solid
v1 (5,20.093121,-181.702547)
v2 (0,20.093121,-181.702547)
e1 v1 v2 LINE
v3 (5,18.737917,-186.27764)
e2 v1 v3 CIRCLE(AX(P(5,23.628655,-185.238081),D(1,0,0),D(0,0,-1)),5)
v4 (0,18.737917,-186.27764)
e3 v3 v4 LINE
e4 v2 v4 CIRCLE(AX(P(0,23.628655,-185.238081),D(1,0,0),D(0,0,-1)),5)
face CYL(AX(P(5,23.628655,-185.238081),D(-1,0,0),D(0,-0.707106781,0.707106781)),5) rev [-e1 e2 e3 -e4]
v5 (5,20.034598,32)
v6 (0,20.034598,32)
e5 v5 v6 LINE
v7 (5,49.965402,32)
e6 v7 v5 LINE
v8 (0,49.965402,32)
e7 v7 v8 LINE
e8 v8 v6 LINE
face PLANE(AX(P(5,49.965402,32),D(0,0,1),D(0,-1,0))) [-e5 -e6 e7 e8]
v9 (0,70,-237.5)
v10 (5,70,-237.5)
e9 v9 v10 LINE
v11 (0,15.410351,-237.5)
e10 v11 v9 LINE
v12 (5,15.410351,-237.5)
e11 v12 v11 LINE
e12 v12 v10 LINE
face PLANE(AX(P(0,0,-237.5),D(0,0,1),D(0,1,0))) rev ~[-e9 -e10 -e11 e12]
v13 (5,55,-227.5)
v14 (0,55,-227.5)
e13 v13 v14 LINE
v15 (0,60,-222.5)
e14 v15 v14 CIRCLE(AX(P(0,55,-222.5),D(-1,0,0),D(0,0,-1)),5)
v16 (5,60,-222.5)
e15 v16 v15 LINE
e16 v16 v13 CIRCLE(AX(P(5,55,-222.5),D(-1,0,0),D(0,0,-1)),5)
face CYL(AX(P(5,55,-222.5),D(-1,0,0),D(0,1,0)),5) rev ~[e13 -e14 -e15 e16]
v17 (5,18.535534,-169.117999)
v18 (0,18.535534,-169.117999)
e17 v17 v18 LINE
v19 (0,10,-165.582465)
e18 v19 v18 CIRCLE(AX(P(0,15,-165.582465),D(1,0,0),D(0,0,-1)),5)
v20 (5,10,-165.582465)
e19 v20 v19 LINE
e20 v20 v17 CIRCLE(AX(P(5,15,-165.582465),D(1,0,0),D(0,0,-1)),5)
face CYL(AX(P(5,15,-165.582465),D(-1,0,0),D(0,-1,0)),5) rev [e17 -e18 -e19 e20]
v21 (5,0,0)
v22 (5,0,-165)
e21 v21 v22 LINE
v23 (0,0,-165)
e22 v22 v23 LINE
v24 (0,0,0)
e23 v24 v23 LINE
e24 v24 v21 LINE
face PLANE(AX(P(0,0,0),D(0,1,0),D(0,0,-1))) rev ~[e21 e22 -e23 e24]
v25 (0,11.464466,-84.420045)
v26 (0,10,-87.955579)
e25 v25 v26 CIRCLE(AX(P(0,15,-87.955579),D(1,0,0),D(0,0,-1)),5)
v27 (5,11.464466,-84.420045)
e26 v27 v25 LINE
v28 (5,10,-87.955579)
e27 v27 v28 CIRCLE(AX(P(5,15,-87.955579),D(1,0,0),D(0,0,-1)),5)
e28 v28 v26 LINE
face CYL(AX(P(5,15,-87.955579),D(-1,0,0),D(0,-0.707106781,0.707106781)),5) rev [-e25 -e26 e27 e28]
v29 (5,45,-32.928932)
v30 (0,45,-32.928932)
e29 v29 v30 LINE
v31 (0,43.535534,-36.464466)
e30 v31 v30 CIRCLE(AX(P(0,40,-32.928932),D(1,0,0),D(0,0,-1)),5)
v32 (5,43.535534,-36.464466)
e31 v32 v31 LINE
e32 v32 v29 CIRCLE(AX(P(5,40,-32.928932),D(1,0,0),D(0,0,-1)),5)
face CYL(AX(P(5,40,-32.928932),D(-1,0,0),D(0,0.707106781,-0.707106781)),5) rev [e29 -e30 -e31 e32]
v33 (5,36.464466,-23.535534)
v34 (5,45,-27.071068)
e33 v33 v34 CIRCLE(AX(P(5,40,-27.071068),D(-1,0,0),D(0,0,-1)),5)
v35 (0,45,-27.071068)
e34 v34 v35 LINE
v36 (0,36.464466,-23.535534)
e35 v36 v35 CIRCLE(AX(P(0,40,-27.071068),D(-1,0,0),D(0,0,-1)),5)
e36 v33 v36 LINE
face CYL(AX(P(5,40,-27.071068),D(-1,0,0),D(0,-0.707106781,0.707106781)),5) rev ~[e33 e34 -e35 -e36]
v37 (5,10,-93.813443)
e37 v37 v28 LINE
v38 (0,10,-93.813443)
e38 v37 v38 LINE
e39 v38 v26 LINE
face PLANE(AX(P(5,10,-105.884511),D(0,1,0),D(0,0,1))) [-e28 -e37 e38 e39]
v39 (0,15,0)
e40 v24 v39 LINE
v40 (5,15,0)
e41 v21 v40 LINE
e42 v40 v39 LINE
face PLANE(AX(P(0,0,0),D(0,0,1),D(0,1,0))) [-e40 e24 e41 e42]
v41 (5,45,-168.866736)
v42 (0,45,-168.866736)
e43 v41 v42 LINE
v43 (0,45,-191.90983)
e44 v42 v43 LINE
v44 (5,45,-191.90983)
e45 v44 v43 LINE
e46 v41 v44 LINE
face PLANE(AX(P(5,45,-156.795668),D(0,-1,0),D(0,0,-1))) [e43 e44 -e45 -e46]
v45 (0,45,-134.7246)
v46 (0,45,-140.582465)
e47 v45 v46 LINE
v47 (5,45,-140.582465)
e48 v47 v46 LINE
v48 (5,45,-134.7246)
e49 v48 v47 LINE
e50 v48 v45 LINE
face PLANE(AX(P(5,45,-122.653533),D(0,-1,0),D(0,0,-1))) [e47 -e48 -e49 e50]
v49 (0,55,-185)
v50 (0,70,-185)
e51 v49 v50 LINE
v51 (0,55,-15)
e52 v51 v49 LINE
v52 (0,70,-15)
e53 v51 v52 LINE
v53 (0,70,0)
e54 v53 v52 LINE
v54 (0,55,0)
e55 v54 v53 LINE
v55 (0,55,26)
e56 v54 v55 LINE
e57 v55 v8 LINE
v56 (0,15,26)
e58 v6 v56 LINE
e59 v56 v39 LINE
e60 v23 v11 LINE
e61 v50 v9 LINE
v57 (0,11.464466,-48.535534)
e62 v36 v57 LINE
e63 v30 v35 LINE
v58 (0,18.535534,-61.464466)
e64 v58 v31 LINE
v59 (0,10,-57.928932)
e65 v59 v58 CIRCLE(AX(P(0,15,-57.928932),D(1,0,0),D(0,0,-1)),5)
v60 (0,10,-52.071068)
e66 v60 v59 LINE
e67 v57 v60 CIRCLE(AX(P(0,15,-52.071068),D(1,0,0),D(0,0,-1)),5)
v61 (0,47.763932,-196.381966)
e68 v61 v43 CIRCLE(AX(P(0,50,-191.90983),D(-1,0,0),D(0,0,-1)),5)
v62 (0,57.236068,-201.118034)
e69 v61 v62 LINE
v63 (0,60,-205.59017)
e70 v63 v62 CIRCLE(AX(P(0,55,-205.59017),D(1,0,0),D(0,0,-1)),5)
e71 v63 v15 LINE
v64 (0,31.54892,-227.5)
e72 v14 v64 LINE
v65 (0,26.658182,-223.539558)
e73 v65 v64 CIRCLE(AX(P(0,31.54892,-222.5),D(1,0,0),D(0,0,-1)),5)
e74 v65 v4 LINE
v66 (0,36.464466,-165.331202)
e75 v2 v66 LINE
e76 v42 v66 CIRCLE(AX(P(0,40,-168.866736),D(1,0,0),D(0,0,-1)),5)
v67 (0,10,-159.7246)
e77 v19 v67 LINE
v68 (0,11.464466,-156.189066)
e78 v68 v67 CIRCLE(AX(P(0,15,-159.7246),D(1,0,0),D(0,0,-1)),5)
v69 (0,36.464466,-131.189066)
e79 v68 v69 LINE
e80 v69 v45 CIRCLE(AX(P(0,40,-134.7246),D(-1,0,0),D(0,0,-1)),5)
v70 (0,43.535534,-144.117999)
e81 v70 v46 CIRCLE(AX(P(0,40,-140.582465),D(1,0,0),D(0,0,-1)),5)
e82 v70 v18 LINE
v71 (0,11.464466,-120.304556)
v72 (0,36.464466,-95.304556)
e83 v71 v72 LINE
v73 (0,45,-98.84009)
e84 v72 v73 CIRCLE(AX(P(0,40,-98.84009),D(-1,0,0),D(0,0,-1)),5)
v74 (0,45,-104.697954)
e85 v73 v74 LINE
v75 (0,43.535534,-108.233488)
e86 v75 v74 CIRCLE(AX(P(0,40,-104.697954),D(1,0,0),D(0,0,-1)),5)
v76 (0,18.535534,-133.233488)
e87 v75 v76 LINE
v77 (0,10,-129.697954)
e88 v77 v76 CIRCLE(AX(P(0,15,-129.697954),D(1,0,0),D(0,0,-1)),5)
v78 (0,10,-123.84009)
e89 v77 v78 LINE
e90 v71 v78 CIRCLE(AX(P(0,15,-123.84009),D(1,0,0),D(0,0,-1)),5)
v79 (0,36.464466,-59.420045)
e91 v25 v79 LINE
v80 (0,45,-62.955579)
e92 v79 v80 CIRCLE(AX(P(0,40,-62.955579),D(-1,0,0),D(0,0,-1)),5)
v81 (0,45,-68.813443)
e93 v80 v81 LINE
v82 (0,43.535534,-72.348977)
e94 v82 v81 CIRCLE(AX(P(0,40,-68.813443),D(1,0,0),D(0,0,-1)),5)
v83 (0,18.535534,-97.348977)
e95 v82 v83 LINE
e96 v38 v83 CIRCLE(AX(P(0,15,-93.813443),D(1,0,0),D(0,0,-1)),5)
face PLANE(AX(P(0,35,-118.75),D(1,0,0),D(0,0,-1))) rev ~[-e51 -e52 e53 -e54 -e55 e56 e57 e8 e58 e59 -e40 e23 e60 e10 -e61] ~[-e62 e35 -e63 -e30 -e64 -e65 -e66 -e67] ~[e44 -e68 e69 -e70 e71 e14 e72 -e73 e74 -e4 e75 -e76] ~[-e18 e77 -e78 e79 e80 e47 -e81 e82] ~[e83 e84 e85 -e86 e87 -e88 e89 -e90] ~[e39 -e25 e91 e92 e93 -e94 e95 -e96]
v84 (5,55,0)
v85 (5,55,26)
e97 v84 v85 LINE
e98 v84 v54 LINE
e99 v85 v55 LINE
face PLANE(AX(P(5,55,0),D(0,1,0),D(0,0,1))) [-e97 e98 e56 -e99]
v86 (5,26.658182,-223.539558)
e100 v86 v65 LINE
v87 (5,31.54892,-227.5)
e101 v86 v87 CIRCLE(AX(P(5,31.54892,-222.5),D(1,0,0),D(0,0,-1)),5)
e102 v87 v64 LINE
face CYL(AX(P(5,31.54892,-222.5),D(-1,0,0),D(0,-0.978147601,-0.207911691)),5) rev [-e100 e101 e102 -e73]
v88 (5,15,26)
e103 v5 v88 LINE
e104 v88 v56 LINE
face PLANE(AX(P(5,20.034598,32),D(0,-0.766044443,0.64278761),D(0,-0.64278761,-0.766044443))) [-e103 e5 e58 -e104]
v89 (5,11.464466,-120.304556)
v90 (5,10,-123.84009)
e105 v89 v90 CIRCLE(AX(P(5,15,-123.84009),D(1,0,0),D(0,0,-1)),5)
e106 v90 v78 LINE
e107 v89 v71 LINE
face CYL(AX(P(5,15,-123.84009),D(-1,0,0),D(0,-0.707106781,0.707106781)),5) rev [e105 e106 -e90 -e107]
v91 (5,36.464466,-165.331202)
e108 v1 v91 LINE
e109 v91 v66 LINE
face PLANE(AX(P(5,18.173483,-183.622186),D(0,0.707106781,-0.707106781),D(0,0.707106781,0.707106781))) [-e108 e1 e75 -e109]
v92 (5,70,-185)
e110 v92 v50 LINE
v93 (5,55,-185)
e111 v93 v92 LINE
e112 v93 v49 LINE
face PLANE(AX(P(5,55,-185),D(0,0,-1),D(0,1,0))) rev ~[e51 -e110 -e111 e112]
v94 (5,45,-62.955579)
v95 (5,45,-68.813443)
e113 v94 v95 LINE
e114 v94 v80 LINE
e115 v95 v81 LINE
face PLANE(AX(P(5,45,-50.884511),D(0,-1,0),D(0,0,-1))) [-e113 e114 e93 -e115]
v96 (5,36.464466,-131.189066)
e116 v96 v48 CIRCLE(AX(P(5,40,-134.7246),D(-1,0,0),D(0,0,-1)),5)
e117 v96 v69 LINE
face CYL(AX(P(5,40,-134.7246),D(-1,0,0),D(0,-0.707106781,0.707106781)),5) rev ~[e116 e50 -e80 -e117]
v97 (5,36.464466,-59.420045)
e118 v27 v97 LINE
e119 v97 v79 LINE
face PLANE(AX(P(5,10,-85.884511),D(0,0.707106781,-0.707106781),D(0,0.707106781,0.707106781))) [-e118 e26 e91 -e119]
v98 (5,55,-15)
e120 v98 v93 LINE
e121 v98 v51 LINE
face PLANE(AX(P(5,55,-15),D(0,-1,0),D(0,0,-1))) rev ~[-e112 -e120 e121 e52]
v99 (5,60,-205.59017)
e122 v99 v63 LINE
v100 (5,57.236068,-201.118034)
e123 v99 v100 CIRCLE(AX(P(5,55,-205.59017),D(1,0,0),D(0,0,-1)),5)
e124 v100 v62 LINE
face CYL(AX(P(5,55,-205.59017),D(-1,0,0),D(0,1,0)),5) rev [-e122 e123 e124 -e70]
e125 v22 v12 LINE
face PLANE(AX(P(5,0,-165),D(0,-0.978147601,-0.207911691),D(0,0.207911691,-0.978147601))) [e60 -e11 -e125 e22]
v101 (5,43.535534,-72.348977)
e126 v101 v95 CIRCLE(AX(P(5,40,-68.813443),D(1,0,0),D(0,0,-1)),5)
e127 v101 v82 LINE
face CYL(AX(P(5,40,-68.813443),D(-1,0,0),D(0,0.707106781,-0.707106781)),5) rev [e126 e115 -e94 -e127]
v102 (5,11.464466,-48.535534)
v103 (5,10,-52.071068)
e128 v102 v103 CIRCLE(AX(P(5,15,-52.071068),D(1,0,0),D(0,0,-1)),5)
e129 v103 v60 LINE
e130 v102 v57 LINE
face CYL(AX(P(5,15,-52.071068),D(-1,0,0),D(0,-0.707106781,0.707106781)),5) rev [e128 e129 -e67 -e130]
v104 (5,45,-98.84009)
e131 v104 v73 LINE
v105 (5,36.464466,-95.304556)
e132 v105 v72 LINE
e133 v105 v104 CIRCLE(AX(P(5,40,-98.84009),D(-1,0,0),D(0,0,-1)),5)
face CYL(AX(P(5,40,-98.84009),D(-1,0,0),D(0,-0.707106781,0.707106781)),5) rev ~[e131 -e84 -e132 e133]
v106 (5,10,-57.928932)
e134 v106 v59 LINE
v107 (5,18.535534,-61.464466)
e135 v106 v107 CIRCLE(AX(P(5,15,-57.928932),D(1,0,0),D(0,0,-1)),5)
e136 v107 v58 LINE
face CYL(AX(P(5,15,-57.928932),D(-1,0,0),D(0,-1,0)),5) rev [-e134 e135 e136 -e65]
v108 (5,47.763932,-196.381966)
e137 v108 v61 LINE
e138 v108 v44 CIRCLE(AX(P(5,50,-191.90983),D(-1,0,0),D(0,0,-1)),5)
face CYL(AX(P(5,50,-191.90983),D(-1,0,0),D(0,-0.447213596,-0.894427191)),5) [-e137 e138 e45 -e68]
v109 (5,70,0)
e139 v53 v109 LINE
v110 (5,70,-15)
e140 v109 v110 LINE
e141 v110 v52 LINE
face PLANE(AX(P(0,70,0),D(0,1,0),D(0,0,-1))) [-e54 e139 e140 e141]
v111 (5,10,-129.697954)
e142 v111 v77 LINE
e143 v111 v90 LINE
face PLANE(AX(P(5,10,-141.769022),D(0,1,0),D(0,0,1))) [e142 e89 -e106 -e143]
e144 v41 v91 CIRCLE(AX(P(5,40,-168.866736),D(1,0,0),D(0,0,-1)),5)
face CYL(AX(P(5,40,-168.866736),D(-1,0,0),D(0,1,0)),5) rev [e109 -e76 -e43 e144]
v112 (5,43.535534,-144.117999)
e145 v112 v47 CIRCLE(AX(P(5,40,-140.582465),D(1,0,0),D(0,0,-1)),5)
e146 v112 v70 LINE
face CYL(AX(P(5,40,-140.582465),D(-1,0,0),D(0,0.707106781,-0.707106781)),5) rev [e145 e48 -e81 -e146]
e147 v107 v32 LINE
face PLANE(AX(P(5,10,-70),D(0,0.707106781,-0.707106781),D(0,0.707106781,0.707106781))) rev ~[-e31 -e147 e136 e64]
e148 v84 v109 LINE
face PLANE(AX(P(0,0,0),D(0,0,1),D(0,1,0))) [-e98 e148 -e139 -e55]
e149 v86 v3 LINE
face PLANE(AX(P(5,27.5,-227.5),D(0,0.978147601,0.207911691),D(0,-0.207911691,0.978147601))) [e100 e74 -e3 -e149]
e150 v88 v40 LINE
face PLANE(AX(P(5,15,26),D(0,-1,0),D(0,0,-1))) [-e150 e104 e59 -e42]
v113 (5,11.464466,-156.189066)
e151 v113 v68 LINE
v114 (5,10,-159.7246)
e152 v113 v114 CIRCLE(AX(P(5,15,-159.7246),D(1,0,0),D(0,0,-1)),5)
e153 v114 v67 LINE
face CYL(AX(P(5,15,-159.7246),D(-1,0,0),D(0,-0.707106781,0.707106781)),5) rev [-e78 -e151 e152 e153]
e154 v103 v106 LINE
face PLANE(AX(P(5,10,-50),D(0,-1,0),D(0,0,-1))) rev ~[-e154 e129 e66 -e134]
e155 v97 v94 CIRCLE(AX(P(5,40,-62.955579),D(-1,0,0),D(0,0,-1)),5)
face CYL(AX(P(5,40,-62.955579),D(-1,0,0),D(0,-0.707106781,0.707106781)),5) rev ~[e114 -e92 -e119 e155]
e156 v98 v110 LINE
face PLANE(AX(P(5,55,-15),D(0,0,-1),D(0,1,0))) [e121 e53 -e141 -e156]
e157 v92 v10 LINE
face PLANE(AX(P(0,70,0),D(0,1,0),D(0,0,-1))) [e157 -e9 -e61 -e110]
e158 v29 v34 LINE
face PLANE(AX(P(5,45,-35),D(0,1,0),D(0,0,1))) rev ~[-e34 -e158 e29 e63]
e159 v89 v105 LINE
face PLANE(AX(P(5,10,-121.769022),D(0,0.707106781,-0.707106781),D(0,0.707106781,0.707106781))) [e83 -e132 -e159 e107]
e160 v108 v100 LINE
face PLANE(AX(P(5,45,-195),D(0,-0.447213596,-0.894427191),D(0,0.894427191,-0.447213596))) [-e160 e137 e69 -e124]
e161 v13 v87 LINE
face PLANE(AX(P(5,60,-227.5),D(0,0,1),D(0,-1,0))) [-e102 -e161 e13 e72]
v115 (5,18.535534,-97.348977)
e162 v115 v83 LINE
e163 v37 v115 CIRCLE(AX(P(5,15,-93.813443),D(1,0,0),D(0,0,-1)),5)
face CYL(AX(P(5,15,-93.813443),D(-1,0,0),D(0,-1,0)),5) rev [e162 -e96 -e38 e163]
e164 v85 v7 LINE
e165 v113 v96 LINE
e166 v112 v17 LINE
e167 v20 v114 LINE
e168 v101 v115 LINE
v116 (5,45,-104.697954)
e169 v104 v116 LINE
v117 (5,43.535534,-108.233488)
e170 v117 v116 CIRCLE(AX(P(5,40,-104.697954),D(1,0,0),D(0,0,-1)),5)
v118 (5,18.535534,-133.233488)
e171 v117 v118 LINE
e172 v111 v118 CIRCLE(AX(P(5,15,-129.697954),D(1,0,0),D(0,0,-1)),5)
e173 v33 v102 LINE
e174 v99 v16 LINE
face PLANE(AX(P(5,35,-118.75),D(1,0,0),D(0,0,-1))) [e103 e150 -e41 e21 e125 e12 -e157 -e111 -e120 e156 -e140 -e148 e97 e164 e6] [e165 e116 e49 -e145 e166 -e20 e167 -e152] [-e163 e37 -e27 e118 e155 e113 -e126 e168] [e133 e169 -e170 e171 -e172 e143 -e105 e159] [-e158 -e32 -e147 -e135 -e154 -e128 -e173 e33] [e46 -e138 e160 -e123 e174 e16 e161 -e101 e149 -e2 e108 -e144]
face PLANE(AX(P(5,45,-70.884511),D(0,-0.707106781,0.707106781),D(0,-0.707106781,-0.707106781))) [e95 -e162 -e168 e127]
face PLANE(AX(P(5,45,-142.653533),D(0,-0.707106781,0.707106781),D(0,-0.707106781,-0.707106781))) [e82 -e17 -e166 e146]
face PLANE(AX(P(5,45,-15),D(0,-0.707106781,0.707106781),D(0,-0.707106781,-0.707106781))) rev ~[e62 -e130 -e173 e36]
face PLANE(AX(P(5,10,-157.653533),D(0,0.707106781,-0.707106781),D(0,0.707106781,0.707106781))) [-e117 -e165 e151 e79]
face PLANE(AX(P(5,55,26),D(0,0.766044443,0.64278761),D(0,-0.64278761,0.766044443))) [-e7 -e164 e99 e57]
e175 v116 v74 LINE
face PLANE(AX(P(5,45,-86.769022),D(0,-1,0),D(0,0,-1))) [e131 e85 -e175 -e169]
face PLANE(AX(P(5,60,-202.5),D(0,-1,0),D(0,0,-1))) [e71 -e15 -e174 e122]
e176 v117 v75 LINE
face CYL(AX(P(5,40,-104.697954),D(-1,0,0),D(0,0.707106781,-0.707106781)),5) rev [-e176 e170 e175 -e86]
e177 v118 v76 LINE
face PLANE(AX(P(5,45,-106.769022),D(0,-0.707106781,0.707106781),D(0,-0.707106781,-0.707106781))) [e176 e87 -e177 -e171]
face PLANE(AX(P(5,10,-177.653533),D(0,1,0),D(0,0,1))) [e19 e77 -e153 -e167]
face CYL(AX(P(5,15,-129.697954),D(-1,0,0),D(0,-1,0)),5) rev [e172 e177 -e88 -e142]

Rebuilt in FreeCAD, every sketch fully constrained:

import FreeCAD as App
import Part
import Sketcher
Q = App.Units.Quantity


def edges_at(feature, points):
    """Names of the edges that pass closest to the given points."""
    edges = feature.Shape.Edges
    near = lambda p: min(range(len(edges)), key=lambda i: edges[i].distToShape(Part.Vertex(*p))[0])
    return sorted({f"Edge{near(p) + 1}" for p in points})


def add_polygon(sketch, points):
    """Adds a closed chain of lines whose ends are joined by coincident constraints."""
    first, n = sketch.GeometryCount, len(points)
    for a, b in zip(points, points[1:] + points[:1]):
        sketch.addGeometry(Part.LineSegment(App.Vector(*a, 0), App.Vector(*b, 0)), False)
    for i in range(n):
        sketch.addConstraint(Sketcher.Constraint("Coincident", first + i, 2, first + (i + 1) % n, 1))

doc = App.newDocument("Part")
body = doc.addObject("PartDesign::Body", "Body")

# Sketch on YZ plane
sketch1 = body.newObject("Sketcher::SketchObject", "Sketch")
sketch1.AttachmentSupport = (doc.getObject("YZ_Plane"), [""])
sketch1.MapMode = "FlatFace"
add_polygon(sketch1, [(70, 0), (0, 0), (0, -238), (70, -238)])  # lines 0-3
sketch1.addConstraint([
    Sketcher.Constraint("Horizontal", 0),
    Sketcher.Constraint("Vertical", 1),
    Sketcher.Constraint("Horizontal", 2),
    Sketcher.Constraint("Vertical", 3),
    Sketcher.Constraint("Coincident", 0, 2, -1, 1),
    Sketcher.Constraint("DistanceX", 0, 2, 0, 1, Q("70 mm")),
    Sketcher.Constraint("DistanceY", 1, 2, 1, 1, Q("237.5 mm")),
])
pad1 = body.newObject("PartDesign::Pad", "Pad")
pad1.Profile = sketch1
pad1.Length = 5

# Sketch on YZ plane
sketch2 = body.newObject("Sketcher::SketchObject", "Sketch001")
sketch2.AttachmentSupport = (doc.getObject("YZ_Plane"), [""])
sketch2.MapMode = "FlatFace"
sketch2.AttachmentOffset = App.Placement(App.Vector(0, 0, 5), App.Rotation())
add_polygon(sketch2, [(15, -238), (0, -165), (0, -238)])  # lines 0-2
sketch2.addConstraint([
    Sketcher.Constraint("Vertical", 1),
    Sketcher.Constraint("Horizontal", 2),
    Sketcher.Constraint("PointOnObject", 0, 2, -2),
    Sketcher.Constraint("Angle", 0, Q("102 deg")),
    Sketcher.Constraint("DistanceY", 1, 2, 1, 1, Q("72.5 mm")),
    Sketcher.Constraint("DistanceY", 0, 2, -1, 1, Q("165 mm")),
])
pocket1 = body.newObject("PartDesign::Pocket", "Pocket")
pocket1.Profile = sketch2
pocket1.Type = "ThroughAll"

# Sketch on YZ plane
sketch3 = body.newObject("Sketcher::SketchObject", "Sketch002")
sketch3.AttachmentSupport = (doc.getObject("YZ_Plane"), [""])
sketch3.MapMode = "FlatFace"
sketch3.AttachmentOffset = App.Placement(App.Vector(0, 0, 5), App.Rotation())
add_polygon(sketch3, [(70, -15), (55, -15), (55, -185), (70, -185)])  # lines 0-3
sketch3.addConstraint([
    Sketcher.Constraint("Horizontal", 0),
    Sketcher.Constraint("Vertical", 1),
    Sketcher.Constraint("Horizontal", 2),
    Sketcher.Constraint("Vertical", 3),
    Sketcher.Constraint("DistanceX", 0, 2, 0, 1, Q("15 mm")),
    Sketcher.Constraint("DistanceY", 1, 2, 1, 1, Q("170 mm")),
    Sketcher.Constraint("DistanceX", -1, 1, 0, 2, Q("55 mm")),
    Sketcher.Constraint("DistanceY", 0, 2, -1, 1, Q("15 mm")),
])
pocket2 = body.newObject("PartDesign::Pocket", "Pocket001")
pocket2.Profile = sketch3
pocket2.Length = 5

# Sketch on YZ plane
sketch4 = body.newObject("Sketcher::SketchObject", "Sketch003")
sketch4.AttachmentSupport = (doc.getObject("YZ_Plane"), [""])
sketch4.MapMode = "FlatFace"
sketch4.AttachmentOffset = App.Placement(App.Vector(0, 0, 5), App.Rotation())
add_polygon(sketch4, [(45, -15), (10, -50), (10, -70), (45, -35)])  # lines 0-3
add_polygon(sketch4, [(45, -71), (45, -51), (10, -86), (10, -106)])  # lines 4-7
add_polygon(sketch4, [(45, -107), (45, -87), (10, -122), (10, -142)])  # lines 8-11
add_polygon(sketch4, [(45, -143), (45, -123), (10, -158), (10, -178)])  # lines 12-15
add_polygon(sketch4, [(28, -228), (60, -228), (60, -202), (45, -195), (45, -157), (18, -184)])  # lines 16-21
sketch4.addConstraint([
    Sketcher.Constraint("Vertical", 1),
    Sketcher.Constraint("Vertical", 3),
    Sketcher.Constraint("Vertical", 4),
    Sketcher.Constraint("Vertical", 6),
    Sketcher.Constraint("Vertical", 8),
    Sketcher.Constraint("Vertical", 10),
    Sketcher.Constraint("Vertical", 12),
    Sketcher.Constraint("Vertical", 14),
    Sketcher.Constraint("Horizontal", 16),
    Sketcher.Constraint("Vertical", 17),
    Sketcher.Constraint("Vertical", 19),
    Sketcher.Constraint("Parallel", 0, 2),
    Sketcher.Constraint("Parallel", 2, 5),
    Sketcher.Constraint("Parallel", 5, 7),
    Sketcher.Constraint("Parallel", 7, 9),
    Sketcher.Constraint("Parallel", 9, 11),
    Sketcher.Constraint("Parallel", 11, 13),
    Sketcher.Constraint("Parallel", 13, 15),
    Sketcher.Constraint("Parallel", 15, 20),
    Sketcher.Constraint("Vertical", 3, 2, 4, 2),
    Sketcher.Constraint("Vertical", 1, 2, 5, 2),
    Sketcher.Constraint("Vertical", 7, 2, 8, 2),
    Sketcher.Constraint("Vertical", 6, 2, 9, 2),
    Sketcher.Constraint("Vertical", 11, 2, 12, 2),
    Sketcher.Constraint("Vertical", 10, 2, 13, 2),
    Sketcher.Constraint("Vertical", 15, 2, 18, 2),
    Sketcher.Constraint("Equal", 3, 4),
    Sketcher.Constraint("Equal", 6, 8),
    Sketcher.Constraint("Equal", 10, 12),
    Sketcher.Constraint("DistanceY", 1, 2, 1, 1, Q("20 mm")),
    Sketcher.Constraint("DistanceY", 17, 1, 17, 2, Q("25 mm")),
    Sketcher.Constraint("Angle", 0, Q("-135 deg")),
    Sketcher.Constraint("Angle", 21, Q("-78 deg")),
    Sketcher.Constraint("DistanceX", 16, 1, 16, 2, Q("32.5 mm")),
    Sketcher.Constraint("DistanceX", -1, 1, 0, 2, Q("10 mm")),
    Sketcher.Constraint("DistanceY", 0, 2, -1, 1, Q("50 mm")),
    Sketcher.Constraint("DistanceX", -1, 1, 2, 2, Q("45 mm")),
    Sketcher.Constraint("DistanceX", -1, 1, 16, 2, Q("60 mm")),
    Sketcher.Constraint("DistanceY", 18, 2, -1, 1, Q("195 mm")),
    Sketcher.Constraint("DistanceY", 16, 2, -1, 1, Q("227.5 mm")),
    Sketcher.Constraint("DistanceY", 19, 1, 19, 2, Q("38.204332 mm")),
    Sketcher.Constraint("DistanceY", 4, 2, -1, 1, Q("50.884511 mm")),
    Sketcher.Constraint("DistanceY", 8, 2, -1, 1, Q("86.769022 mm")),
    Sketcher.Constraint("DistanceY", 12, 2, 11, 2, Q("15.884511 mm")),
])
pocket3 = body.newObject("PartDesign::Pocket", "Pocket002")
pocket3.Profile = sketch4
pocket3.Type = "ThroughAll"
doc.recompute()

fillet = body.newObject("PartDesign::Fillet", "Fillet")
fillet.Base = (pocket3, edges_at(pocket3, [
    (2.5, 60, -202.5),
    (2.5, 60, -227.5),
    (2.5, 27.5, -227.5),
    (2.5, 18.173, -183.622),
    (2.5, 45, -156.796),
    (2.5, 45, -195),
    (2.5, 10, -85.885),
    (2.5, 45, -50.885),
    (2.5, 45, -70.885),
    (2.5, 10, -105.885),
    (2.5, 10, -157.654),
    (2.5, 45, -122.654),
    (2.5, 45, -142.654),
    (2.5, 10, -177.654),
    (2.5, 10, -121.769),
    (2.5, 45, -86.769),
    (2.5, 45, -106.769),
    (2.5, 10, -141.769),
    (2.5, 45, -15),
    (2.5, 45, -35),
    (2.5, 10, -70),
    (2.5, 10, -50),
]))
fillet.Radius = 5

# Sketch on YZ plane
sketch5 = body.newObject("Sketcher::SketchObject", "Sketch004")
sketch5.AttachmentSupport = (doc.getObject("YZ_Plane"), [""])
sketch5.MapMode = "FlatFace"
sketch5.AttachmentOffset = App.Placement(App.Vector(0, 0, 5), App.Rotation())
add_polygon(sketch5, [(55, 0), (55, 26), (50, 32), (20, 32), (15, 26), (15, 0)])  # lines 0-5
sketch5.addConstraint([
    Sketcher.Constraint("Vertical", 0),
    Sketcher.Constraint("Horizontal", 2),
    Sketcher.Constraint("Vertical", 4),
    Sketcher.Constraint("Horizontal", 5),
    Sketcher.Constraint("PointOnObject", 4, 2, -1),
    Sketcher.Constraint("Horizontal", 0, 2, 3, 2),
    Sketcher.Constraint("Equal", 1, 3),
    Sketcher.Constraint("DistanceX", 5, 1, 5, 2, Q("40 mm")),
    Sketcher.Constraint("DistanceY", 0, 1, 0, 2, Q("26 mm")),
    Sketcher.Constraint("Angle", 1, Q("130 deg")),
    Sketcher.Constraint("DistanceX", -1, 1, 0, 2, Q("55 mm")),
    Sketcher.Constraint("DistanceY", -1, 1, 1, 2, Q("32 mm")),
])
pad2 = body.newObject("PartDesign::Pad", "Pad001")
pad2.Profile = sketch5
pad2.Length = 5
pad2.Reversed = True

doc.recompute()
